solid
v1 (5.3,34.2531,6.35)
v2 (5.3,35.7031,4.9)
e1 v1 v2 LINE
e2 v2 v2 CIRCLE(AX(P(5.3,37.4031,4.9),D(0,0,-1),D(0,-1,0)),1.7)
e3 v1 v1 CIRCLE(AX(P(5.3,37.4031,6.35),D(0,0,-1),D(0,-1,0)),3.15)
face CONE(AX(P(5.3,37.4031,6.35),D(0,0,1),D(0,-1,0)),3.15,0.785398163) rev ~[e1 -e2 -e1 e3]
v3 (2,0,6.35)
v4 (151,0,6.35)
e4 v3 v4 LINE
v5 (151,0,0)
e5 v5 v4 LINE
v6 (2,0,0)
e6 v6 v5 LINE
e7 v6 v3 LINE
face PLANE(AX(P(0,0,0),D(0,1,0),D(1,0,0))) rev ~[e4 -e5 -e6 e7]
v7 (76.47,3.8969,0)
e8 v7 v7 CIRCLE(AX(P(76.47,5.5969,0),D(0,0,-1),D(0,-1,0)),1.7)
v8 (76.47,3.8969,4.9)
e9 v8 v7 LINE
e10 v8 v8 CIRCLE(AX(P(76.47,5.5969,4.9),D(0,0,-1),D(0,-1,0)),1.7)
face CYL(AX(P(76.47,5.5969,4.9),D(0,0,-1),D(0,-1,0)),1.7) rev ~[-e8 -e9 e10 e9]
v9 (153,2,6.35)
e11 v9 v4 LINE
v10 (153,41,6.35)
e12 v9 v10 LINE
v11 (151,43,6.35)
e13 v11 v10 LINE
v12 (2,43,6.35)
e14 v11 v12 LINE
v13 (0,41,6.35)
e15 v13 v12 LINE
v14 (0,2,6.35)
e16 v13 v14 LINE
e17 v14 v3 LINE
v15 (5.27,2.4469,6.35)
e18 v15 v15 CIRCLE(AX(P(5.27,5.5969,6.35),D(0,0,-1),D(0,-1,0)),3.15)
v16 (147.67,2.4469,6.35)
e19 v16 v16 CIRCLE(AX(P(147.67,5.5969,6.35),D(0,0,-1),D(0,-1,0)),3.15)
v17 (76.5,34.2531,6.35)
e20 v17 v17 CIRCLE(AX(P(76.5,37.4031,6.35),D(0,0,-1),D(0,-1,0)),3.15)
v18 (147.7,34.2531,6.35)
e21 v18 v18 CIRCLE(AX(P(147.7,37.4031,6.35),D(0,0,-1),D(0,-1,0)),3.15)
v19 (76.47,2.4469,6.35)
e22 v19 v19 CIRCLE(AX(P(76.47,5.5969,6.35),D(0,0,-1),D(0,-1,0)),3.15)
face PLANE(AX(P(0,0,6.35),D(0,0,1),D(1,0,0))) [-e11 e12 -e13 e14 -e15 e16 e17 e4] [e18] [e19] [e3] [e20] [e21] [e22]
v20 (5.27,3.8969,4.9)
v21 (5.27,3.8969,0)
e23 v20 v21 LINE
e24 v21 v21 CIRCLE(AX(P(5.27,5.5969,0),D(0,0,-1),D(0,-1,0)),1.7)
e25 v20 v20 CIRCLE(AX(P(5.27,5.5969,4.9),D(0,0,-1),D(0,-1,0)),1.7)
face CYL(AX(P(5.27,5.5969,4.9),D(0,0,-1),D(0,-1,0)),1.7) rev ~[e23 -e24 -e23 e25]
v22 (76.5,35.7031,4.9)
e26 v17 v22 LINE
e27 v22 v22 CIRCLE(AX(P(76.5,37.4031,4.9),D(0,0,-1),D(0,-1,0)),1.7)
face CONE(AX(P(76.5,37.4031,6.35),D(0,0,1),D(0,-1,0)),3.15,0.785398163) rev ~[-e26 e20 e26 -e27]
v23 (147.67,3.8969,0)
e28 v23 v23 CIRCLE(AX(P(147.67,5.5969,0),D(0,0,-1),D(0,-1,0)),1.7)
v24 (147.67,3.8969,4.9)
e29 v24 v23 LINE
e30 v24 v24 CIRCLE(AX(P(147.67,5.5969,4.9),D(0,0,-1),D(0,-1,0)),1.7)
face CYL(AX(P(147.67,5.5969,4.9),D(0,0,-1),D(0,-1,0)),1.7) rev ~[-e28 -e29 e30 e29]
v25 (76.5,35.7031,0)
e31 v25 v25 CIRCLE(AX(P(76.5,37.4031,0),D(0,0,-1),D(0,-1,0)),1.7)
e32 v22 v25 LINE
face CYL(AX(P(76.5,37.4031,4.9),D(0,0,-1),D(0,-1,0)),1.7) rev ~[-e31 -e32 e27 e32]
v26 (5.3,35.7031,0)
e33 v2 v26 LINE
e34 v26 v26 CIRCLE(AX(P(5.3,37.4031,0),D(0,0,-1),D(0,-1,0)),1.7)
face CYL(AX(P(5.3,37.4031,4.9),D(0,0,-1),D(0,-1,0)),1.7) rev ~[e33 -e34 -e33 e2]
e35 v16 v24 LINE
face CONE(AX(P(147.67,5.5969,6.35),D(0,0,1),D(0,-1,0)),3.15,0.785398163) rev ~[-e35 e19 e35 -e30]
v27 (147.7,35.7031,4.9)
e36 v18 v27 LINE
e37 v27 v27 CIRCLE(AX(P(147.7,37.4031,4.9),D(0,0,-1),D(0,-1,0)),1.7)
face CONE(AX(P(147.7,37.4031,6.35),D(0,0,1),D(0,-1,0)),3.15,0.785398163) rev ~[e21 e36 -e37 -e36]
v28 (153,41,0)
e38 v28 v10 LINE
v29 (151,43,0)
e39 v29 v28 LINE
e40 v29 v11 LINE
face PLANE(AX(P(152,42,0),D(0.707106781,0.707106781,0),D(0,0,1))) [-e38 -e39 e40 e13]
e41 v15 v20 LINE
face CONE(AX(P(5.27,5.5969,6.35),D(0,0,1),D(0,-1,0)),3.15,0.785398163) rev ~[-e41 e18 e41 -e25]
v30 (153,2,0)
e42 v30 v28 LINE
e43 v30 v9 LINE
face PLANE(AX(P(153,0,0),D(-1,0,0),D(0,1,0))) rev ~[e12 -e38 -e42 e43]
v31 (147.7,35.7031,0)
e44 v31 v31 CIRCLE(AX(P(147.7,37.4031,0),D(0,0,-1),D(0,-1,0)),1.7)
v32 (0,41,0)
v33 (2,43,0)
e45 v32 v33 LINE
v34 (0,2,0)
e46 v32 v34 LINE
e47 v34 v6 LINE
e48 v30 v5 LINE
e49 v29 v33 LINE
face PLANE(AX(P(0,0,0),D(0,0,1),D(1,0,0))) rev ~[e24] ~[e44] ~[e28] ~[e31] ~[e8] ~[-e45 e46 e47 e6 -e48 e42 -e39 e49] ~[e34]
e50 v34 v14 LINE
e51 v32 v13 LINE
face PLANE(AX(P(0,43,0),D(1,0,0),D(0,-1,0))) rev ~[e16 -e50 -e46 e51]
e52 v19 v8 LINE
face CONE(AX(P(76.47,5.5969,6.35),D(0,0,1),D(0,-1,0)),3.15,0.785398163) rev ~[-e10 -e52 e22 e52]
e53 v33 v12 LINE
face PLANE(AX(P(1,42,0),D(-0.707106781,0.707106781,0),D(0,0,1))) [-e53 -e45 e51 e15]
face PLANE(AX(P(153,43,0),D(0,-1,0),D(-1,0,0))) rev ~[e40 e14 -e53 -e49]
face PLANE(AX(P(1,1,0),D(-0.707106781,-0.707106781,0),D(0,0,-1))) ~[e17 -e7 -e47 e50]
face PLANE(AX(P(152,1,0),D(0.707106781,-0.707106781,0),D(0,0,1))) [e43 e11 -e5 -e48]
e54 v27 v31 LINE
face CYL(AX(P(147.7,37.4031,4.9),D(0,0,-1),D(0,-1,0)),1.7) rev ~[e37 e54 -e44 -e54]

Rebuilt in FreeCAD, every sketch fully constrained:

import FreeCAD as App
import Part
import Sketcher
Q = App.Units.Quantity


def edges_at(feature, points):
    """Names of the edges that pass closest to the given points."""
    edges = feature.Shape.Edges
    near = lambda p: min(range(len(edges)), key=lambda i: edges[i].distToShape(Part.Vertex(*p))[0])
    return sorted({f"Edge{near(p) + 1}" for p in points})

doc = App.newDocument("Part")
body = doc.addObject("PartDesign::Body", "Body")

sketch1 = body.newObject("Sketcher::SketchObject", "Sketch")
sketch1.AttachmentSupport = (doc.getObject("XY_Plane"), [""])
sketch1.MapMode = "FlatFace"
sketch1.addGeometry([
    Part.LineSegment(App.Vector(0, 43, 0), App.Vector(0, 0, 0)),
    Part.LineSegment(App.Vector(0, 0, 0), App.Vector(153, 0, 0)),
    Part.LineSegment(App.Vector(153, 0, 0), App.Vector(153, 43, 0)),
    Part.LineSegment(App.Vector(153, 43, 0), App.Vector(0, 43, 0)),
], False)
sketch1.addConstraint([
    Sketcher.Constraint("Coincident", 0, 2, 1, 1),
    Sketcher.Constraint("Coincident", 1, 2, 2, 1),
    Sketcher.Constraint("Coincident", 2, 2, 3, 1),
    Sketcher.Constraint("Coincident", 3, 2, 0, 1),
    Sketcher.Constraint("Vertical", 0),
    Sketcher.Constraint("Horizontal", 1),
    Sketcher.Constraint("Vertical", 2),
    Sketcher.Constraint("Horizontal", 3),
    Sketcher.Constraint("Coincident", 0, 2, -1, 1),
    Sketcher.Constraint("DistanceX", 1, 1, 1, 2, Q("153 mm")),
    Sketcher.Constraint("DistanceY", 0, 2, 0, 1, Q("43 mm")),
])
pad1 = body.newObject("PartDesign::Pad", "Pad")
pad1.Profile = sketch1
pad1.Length = 6.35
doc.recompute()

chamfer = body.newObject("PartDesign::Chamfer", "Chamfer")
chamfer.Base = (pad1, edges_at(pad1, [
    (0, 43, 3.175),
    (0, 0, 3.175),
    (153, 43, 3.175),
    (153, 0, 3.175),
]))
chamfer.Size = 2

sketch2 = body.newObject("Sketcher::SketchObject", "Sketch001")
sketch2.AttachmentSupport = (doc.getObject("XY_Plane"), [""])
sketch2.MapMode = "FlatFace"
sketch2.AttachmentOffset = App.Placement(App.Vector(0, 0, 6.35), App.Rotation())
sketch2.addGeometry([
    Part.Circle(App.Vector(147.7, 37.4031, 0), App.Vector(0, 0, 1), 1.7),
    Part.Circle(App.Vector(76.5, 37.4031, 0), App.Vector(0, 0, 1), 1.7),
    Part.Circle(App.Vector(5.3, 37.4031, 0), App.Vector(0, 0, 1), 1.7),
    Part.Circle(App.Vector(5.27, 5.5969, 0), App.Vector(0, 0, 1), 1.7),
    Part.Circle(App.Vector(76.47, 5.5969, 0), App.Vector(0, 0, 1), 1.7),
    Part.Circle(App.Vector(147.67, 5.5969, 0), App.Vector(0, 0, 1), 1.7),
], False)
sketch2.addConstraint([
    Sketcher.Constraint("Equal", 0, 1),
    Sketcher.Constraint("Equal", 1, 2),
    Sketcher.Constraint("Equal", 2, 3),
    Sketcher.Constraint("Equal", 3, 4),
    Sketcher.Constraint("Equal", 4, 5),
    Sketcher.Constraint("Horizontal", 0, 3, 1, 3),
    Sketcher.Constraint("Horizontal", 1, 3, 2, 3),
    Sketcher.Constraint("Horizontal", 3, 3, 4, 3),
    Sketcher.Constraint("Horizontal", 4, 3, 5, 3),
    Sketcher.Constraint("Diameter", 0, Q("3.4 mm")),
    Sketcher.Constraint("DistanceX", -1, 1, 0, 3, Q("147.7 mm")),
    Sketcher.Constraint("DistanceX", -1, 1, 1, 3, Q("76.5 mm")),
    Sketcher.Constraint("DistanceX", -1, 1, 2, 3, Q("5.3 mm")),
    Sketcher.Constraint("DistanceX", 3, 3, 4, 3, Q("71.2 mm")),
    Sketcher.Constraint("DistanceX", 4, 3, 5, 3, Q("71.2 mm")),
    Sketcher.Constraint("DistanceX", -1, 1, 3, 3, Q("5.27 mm")),
    Sketcher.Constraint("DistanceY", -1, 1, 0, 3, Q("37.403 mm")),
    Sketcher.Constraint("DistanceY", -1, 1, 3, 3, Q("5.597 mm")),
])
doc.recompute()
hole = body.newObject("PartDesign::Hole", "Hole")
hole.Profile = sketch2
hole.ThreadType = "None"
hole.Diameter = 3.4
hole.DepthType = "Dimension"
hole.Depth = 8
hole.DrillPoint = "Angled"
hole.DrillPointAngle = 118
hole.HoleCutType = "Countersink"
hole.HoleCutDiameter = 6.3
hole.HoleCutCountersinkAngle = 90

doc.recompute()
